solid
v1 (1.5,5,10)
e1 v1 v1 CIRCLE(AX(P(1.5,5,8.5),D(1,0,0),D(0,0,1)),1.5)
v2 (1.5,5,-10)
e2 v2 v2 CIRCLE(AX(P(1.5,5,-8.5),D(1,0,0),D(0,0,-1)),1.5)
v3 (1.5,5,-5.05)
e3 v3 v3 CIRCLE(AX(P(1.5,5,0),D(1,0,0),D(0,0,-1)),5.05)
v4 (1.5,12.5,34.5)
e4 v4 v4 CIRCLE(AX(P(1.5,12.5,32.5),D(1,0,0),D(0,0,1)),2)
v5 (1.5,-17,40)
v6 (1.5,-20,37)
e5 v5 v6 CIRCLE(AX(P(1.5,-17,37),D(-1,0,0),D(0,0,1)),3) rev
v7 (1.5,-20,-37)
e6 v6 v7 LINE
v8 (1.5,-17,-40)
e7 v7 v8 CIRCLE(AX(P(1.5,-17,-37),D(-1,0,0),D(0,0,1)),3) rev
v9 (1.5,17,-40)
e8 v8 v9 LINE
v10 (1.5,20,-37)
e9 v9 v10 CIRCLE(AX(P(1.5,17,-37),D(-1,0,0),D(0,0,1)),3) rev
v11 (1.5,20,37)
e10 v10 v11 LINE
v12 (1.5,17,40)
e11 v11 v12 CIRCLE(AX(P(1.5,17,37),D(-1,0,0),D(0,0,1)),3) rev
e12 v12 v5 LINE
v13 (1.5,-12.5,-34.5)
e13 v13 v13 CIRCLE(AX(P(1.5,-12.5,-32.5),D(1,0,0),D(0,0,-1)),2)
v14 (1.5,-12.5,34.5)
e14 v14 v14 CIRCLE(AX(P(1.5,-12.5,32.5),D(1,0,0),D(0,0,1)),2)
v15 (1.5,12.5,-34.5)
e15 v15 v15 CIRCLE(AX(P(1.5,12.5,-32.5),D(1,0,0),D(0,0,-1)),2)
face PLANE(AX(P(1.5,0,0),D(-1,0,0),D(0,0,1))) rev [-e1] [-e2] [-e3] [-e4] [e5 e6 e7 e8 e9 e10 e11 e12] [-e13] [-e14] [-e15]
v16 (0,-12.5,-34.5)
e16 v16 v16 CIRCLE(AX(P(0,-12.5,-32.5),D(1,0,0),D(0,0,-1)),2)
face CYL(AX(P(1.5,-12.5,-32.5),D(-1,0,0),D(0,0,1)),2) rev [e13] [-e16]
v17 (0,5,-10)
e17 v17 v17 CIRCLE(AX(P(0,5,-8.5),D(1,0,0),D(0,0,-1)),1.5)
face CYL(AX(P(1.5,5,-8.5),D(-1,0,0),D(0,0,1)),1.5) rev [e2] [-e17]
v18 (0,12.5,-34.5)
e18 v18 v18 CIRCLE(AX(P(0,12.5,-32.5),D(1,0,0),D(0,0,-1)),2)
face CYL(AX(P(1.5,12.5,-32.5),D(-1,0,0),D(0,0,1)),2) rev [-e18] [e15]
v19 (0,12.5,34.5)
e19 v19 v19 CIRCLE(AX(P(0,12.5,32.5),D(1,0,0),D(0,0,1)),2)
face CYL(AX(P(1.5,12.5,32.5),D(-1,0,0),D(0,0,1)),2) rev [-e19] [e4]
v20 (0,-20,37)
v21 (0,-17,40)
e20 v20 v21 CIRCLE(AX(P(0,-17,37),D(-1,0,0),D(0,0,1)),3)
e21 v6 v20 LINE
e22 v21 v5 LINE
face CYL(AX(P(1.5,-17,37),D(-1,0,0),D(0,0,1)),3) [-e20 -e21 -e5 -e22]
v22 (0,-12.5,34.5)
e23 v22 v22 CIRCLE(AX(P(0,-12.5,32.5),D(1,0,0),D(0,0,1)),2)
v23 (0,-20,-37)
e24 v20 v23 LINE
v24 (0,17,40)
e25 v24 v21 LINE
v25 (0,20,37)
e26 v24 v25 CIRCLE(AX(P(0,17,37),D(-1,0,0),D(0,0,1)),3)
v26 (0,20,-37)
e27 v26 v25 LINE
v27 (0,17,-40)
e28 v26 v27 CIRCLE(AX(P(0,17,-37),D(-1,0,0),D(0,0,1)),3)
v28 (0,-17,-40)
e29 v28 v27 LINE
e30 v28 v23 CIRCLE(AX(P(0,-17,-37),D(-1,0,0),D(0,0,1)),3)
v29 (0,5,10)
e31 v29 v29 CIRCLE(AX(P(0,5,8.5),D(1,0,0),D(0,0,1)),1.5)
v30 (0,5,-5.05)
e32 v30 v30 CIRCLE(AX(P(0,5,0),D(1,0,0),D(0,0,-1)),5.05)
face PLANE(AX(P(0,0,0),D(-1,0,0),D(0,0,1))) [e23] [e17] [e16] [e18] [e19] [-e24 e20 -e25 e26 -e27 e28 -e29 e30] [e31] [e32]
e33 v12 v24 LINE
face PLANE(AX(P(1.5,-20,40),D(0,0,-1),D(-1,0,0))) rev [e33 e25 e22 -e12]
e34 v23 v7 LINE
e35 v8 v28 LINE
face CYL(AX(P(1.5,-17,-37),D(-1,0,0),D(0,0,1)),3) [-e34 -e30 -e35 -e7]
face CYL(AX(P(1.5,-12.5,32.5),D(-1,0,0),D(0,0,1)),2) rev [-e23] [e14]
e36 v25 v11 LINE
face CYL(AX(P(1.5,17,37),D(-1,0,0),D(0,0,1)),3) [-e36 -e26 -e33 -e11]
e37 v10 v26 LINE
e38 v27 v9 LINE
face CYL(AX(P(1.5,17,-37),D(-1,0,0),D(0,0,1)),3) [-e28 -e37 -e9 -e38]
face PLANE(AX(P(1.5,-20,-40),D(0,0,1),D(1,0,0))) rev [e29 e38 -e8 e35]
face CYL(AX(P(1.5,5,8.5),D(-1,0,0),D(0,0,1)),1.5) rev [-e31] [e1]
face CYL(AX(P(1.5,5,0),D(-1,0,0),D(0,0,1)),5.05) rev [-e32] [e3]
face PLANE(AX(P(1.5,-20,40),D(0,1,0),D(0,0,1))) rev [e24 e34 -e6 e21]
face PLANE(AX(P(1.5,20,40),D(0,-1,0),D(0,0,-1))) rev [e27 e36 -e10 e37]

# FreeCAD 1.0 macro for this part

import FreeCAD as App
import Part
import Sketcher
from FreeCAD import Vector
Q = App.Units.Quantity


def edges_at(feature, points):
    """Names of the edges that pass closest to the given points."""
    edges = feature.Shape.Edges
    near = lambda p: min(range(len(edges)), key=lambda i: edges[i].distToShape(Part.Vertex(*p))[0])
    return sorted({f"Edge{near(p) + 1}" for p in points})


def add_polygon(sketch, points):
    """Adds a closed chain of lines whose ends are joined by coincident constraints."""
    first, n = sketch.GeometryCount, len(points)
    for a, b in zip(points, points[1:] + points[:1]):
        sketch.addGeometry(Part.LineSegment(App.Vector(*a, 0), App.Vector(*b, 0)), False)
    for i in range(n):
        sketch.addConstraint(Sketcher.Constraint("Coincident", first + i, 2, first + (i + 1) % n, 1))

doc = App.newDocument("Part")
body = doc.addObject("PartDesign::Body", "Body")

# Sketch on YZ plane
sketch1 = body.newObject("Sketcher::SketchObject", "Sketch")
sketch1.AttachmentSupport = (doc.getObject("YZ_Plane"), [""])
sketch1.MapMode = "FlatFace"
add_polygon(sketch1, [(20, 40), (-20, 40), (-20, -40), (20, -40)])  # lines 0-3
sketch1.addGeometry(Part.Circle(Vector(-12.5, 32.5, 0), Vector(0, 0, 1), 2), False)  # 4
sketch1.addGeometry(Part.Circle(Vector(-12.5, -32.5, 0), Vector(0, 0, 1), 2), False)  # 5
sketch1.addGeometry(Part.Circle(Vector(5, 8.5, 0), Vector(0, 0, 1), 1.5), False)  # 6
sketch1.addGeometry(Part.Circle(Vector(12.5, 32.5, 0), Vector(0, 0, 1), 2), False)  # 7
sketch1.addGeometry(Part.Circle(Vector(5, 0, 0), Vector(0, 0, 1), 5), False)  # 8
sketch1.addGeometry(Part.Circle(Vector(5, -8.5, 0), Vector(0, 0, 1), 1.5), False)  # 9
sketch1.addGeometry(Part.Circle(Vector(12.5, -32.5, 0), Vector(0, 0, 1), 2), False)  # 10
sketch1.addConstraint(Sketcher.Constraint("Horizontal", 0))
sketch1.addConstraint(Sketcher.Constraint("Vertical", 1))
sketch1.addConstraint(Sketcher.Constraint("Horizontal", 2))
sketch1.addConstraint(Sketcher.Constraint("Vertical", 3))
sketch1.addConstraint(Sketcher.Constraint("Equal", 4, 5))
sketch1.addConstraint(Sketcher.Constraint("Equal", 5, 7))
sketch1.addConstraint(Sketcher.Constraint("Equal", 6, 9))
sketch1.addConstraint(Sketcher.Constraint("Equal", 7, 10))
sketch1.addConstraint(Sketcher.Constraint("Symmetric", 5, 3, 7, 3, -1, 1))
sketch1.addConstraint(Sketcher.Constraint("Symmetric", 4, 3, 10, 3, -1, 1))
sketch1.addConstraint(Sketcher.Constraint("Symmetric", 0, 2, 2, 2, -1, 1))
sketch1.addConstraint(Sketcher.Constraint("Symmetric", 4, 3, 7, 3, -2))
sketch1.addConstraint(Sketcher.Constraint("Symmetric", 6, 3, 9, 3, -1))
sketch1.addConstraint(Sketcher.Constraint("PointOnObject", 8, 3, -1))
sketch1.addConstraint(Sketcher.Constraint("Vertical", 6, 3, 8, 3))
sketch1.addConstraint(Sketcher.Constraint("Diameter", 4, Q("4 mm")))
sketch1.addConstraint(Sketcher.Constraint("Diameter", 6, Q("3 mm")))
sketch1.addConstraint(Sketcher.Constraint("Diameter", 8, Q("10.1 mm")))
sketch1.addConstraint(Sketcher.Constraint("DistanceX", 0, 2, 0, 1, Q("40 mm")))
sketch1.addConstraint(Sketcher.Constraint("DistanceY", 1, 2, 1, 1, Q("80 mm")))
sketch1.addConstraint(Sketcher.Constraint("DistanceX", -1, 1, 6, 3, Q("5 mm")))
sketch1.addConstraint(Sketcher.Constraint("DistanceY", 5, 3, 4, 3, Q("65 mm")))
sketch1.addConstraint(Sketcher.Constraint("DistanceY", 6, 3, 4, 3, Q("24 mm")))
sketch1.addConstraint(Sketcher.Constraint("DistanceX", 4, 3, 7, 3, Q("25 mm")))
pad1 = body.newObject("PartDesign::Pad", "Pad")
pad1.Profile = sketch1
pad1.Length = 1.5
doc.recompute()

fillet = body.newObject("PartDesign::Fillet", "Fillet")
fillet.Base = (pad1, edges_at(pad1, [
    (0.75, -20, -40),
    (0.75, -20, 40),
    (0.75, 20, 40),
    (0.75, 20, -40),
]))
fillet.Radius = 3

doc.recompute()
